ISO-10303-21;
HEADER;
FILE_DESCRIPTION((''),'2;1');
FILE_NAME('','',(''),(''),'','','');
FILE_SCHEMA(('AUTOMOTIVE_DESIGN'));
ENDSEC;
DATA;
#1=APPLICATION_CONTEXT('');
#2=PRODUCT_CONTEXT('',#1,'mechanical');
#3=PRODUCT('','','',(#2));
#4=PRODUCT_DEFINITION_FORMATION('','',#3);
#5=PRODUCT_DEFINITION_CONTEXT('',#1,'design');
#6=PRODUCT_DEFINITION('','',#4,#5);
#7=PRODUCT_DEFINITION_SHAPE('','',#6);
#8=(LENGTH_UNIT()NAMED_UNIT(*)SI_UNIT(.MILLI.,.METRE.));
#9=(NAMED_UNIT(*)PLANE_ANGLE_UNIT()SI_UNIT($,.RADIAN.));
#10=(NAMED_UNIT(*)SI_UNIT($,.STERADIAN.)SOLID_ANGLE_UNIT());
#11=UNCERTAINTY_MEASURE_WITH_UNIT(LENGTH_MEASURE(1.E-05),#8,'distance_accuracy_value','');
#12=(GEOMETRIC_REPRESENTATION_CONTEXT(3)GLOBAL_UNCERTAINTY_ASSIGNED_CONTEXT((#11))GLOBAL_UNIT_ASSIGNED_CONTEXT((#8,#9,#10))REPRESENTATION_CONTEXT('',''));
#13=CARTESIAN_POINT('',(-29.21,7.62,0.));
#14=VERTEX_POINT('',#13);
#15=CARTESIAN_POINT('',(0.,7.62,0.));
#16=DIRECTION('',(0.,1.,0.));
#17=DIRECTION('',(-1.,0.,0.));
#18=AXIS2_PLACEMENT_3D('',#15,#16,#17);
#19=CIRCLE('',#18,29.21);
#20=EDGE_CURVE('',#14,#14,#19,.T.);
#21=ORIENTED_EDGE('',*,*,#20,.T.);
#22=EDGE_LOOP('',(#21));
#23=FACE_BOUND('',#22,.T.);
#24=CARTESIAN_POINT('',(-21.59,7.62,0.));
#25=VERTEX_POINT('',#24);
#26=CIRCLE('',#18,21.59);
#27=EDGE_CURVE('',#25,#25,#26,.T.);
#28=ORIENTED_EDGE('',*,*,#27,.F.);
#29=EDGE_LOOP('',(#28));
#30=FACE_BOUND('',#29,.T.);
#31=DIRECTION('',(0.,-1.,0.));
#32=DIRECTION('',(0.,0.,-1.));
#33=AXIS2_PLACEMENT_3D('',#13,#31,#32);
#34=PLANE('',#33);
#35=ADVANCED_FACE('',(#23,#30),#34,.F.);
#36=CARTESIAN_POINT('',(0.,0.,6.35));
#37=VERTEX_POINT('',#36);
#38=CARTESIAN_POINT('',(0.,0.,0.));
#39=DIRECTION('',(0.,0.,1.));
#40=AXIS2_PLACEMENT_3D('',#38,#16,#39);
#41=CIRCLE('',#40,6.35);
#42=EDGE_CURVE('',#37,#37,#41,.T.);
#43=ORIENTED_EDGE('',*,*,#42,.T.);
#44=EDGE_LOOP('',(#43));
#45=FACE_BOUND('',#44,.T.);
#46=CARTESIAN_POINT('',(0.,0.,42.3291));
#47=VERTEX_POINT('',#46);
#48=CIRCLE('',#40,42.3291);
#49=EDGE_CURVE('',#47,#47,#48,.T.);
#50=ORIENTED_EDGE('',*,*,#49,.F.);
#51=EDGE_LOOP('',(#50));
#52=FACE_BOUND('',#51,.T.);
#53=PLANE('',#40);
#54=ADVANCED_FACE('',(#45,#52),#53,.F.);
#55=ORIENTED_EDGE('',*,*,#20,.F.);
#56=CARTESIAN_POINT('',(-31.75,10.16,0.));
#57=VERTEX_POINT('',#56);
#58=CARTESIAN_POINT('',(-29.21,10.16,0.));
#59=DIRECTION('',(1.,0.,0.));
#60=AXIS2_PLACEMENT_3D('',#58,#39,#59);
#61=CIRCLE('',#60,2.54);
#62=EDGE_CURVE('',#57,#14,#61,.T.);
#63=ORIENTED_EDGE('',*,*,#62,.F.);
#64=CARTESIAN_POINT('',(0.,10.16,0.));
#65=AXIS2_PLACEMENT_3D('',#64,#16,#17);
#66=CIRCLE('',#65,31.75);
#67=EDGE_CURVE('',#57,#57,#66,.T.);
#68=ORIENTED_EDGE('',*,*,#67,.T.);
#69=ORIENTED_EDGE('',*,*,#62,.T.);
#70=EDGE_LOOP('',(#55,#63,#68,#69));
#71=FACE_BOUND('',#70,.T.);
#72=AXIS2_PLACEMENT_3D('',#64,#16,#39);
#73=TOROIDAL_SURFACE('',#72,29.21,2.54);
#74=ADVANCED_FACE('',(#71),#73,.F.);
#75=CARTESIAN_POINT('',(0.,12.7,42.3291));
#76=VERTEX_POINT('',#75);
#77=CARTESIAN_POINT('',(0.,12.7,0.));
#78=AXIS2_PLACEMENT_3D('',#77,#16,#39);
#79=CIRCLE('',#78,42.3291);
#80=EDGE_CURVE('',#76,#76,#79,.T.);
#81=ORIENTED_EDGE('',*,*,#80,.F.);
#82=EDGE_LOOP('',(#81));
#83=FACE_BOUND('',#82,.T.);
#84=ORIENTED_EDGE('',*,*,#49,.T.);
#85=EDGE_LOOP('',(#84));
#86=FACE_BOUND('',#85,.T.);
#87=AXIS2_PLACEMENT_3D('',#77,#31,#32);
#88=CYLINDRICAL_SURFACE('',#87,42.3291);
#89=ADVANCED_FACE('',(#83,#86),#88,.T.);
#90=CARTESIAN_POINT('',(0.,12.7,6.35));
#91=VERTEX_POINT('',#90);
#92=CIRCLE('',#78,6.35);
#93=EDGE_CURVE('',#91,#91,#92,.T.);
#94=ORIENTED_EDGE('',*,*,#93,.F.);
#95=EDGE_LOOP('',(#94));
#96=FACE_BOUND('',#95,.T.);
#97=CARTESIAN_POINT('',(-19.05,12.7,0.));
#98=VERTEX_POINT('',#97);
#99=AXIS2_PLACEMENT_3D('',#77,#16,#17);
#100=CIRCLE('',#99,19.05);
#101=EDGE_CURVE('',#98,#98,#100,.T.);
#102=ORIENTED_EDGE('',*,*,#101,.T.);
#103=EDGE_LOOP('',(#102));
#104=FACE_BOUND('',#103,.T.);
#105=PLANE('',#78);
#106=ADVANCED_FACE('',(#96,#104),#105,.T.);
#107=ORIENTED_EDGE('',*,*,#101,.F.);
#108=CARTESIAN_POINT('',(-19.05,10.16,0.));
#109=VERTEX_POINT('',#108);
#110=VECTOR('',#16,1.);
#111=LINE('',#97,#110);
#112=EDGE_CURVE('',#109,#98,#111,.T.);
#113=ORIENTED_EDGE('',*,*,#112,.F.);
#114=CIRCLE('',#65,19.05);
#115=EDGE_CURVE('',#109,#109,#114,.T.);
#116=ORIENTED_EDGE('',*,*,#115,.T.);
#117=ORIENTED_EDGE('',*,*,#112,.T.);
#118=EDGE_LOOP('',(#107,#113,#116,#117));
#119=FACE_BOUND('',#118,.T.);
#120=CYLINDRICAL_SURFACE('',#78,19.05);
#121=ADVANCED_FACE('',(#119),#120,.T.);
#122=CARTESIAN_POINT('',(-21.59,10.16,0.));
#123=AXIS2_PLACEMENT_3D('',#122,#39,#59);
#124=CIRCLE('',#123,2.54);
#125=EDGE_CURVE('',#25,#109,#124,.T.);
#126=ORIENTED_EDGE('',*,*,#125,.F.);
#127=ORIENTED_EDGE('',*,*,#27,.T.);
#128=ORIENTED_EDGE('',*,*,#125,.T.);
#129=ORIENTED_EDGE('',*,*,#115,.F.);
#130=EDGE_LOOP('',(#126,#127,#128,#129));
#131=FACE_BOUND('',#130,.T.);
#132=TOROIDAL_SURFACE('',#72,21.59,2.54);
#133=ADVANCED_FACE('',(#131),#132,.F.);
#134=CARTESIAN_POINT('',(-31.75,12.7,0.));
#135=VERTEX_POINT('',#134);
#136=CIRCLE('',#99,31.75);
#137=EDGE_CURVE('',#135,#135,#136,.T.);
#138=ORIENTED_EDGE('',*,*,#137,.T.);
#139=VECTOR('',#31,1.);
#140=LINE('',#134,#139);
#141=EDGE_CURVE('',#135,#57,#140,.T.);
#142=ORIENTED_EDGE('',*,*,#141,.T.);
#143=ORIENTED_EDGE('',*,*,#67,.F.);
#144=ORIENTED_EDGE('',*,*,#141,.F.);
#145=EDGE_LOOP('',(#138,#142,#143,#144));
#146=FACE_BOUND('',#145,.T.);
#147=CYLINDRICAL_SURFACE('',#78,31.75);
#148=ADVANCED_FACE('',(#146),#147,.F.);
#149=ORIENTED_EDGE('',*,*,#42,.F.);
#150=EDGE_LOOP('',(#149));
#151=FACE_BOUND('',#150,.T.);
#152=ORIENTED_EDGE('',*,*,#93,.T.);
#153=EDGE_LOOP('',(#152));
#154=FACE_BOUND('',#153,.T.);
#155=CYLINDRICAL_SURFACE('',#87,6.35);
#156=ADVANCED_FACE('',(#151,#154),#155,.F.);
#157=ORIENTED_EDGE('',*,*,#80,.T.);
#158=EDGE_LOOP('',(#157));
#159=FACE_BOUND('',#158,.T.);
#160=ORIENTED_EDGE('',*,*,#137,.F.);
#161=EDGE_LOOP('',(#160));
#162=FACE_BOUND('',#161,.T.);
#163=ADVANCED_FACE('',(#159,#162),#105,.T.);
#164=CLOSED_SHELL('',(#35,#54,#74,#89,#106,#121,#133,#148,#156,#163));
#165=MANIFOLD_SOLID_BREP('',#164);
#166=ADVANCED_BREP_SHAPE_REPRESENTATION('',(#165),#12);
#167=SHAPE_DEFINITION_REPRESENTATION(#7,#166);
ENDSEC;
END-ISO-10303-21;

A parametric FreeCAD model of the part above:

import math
import FreeCAD as App
import Part
import Sketcher
Q = App.Units.Quantity

doc = App.newDocument("Part")
body = doc.addObject("PartDesign::Body", "Body")

sketch1 = body.newObject("Sketcher::SketchObject", "Sketch")
sketch1.AttachmentSupport = (doc.getObject("XZ_Plane"), [""])
sketch1.MapMode = "FlatFace"
sketch1.addGeometry([
    Part.Circle(App.Vector(0, 0, 0), App.Vector(0, 0, 1), 42),
    Part.Circle(App.Vector(0, 0, 0), App.Vector(0, 0, 1), 6),
], False)
sketch1.addConstraint([
    Sketcher.Constraint("Coincident", 0, 3, -1, 1),
    Sketcher.Constraint("Coincident", 1, 3, -1, 1),
    Sketcher.Constraint("Diameter", 1, Q("0.5 in")),
    Sketcher.Constraint("Diameter", 0, Q("3.333 in")),
])
pad1 = body.newObject("PartDesign::Pad", "Pad")
pad1.Profile = sketch1
pad1.Length = Q("0.5 in")
pad1.Reversed = True

sketch2 = body.newObject("Sketcher::SketchObject", "Sketch001")
sketch2.AttachmentSupport = (doc.getObject("XY_Plane"), [""])
sketch2.MapMode = "FlatFace"
sketch2.addGeometry([
    Part.LineSegment(App.Vector(-19.1, 12.7, 0), App.Vector(-31.8, 12.7, 0)),
    Part.LineSegment(App.Vector(-31.8, 12.7, 0), App.Vector(-31.8, 10.2, 0)),
    Part.ArcOfCircle(Part.Circle(App.Vector(-29.2, 10.2, 0), App.Vector(0, 0, 1), 2.5), math.radians(-180), math.radians(-90)),
    Part.LineSegment(App.Vector(-29.2, 7.6, 0), App.Vector(-21.6, 7.6, 0)),
    Part.ArcOfCircle(Part.Circle(App.Vector(-21.6, 10.2, 0), App.Vector(0, 0, 1), 2.5), math.radians(-90), math.radians(0)),
    Part.LineSegment(App.Vector(-19.1, 10.2, 0), App.Vector(-19.1, 12.7, 0)),
], False)
sketch2.addConstraint([
    Sketcher.Constraint("Coincident", 0, 2, 1, 1),
    Sketcher.Constraint("Tangent", 1, 2, 2, 1),
    Sketcher.Constraint("Tangent", 2, 2, 3, 1),
    Sketcher.Constraint("Tangent", 3, 2, 4, 1),
    Sketcher.Constraint("Tangent", 4, 2, 5, 1),
    Sketcher.Constraint("Coincident", 5, 2, 0, 1),
    Sketcher.Constraint("Horizontal", 0),
    Sketcher.Constraint("Vertical", 1),
    Sketcher.Constraint("Horizontal", 3),
    Sketcher.Constraint("Vertical", 5),
    Sketcher.Constraint("Equal", 2, 4),
    Sketcher.Constraint("Radius", 2, Q("0.1 in")),
    Sketcher.Constraint("DistanceX", 0, 2, 0, 1, Q("0.5 in")),
    Sketcher.Constraint("DistanceY", 1, 2, 1, 1, Q("0.1 in")),
    Sketcher.Constraint("DistanceY", -1, 1, 2, 3, Q("0.4 in")),
    Sketcher.Constraint("DistanceX", 2, 3, -1, 1, Q("1.15 in")),
])

sketch3 = body.newObject("Sketcher::SketchObject", "Sketch002")
sketch3.AttachmentSupport = (doc.getObject("XZ_Plane"), [""])
sketch3.MapMode = "FlatFace"
sketch3.AttachmentOffset = App.Placement(App.Vector(0, 0, -0.5 * 25.4), App.Rotation())
sketch3.addGeometry(Part.Circle(App.Vector(0, 0, 0), App.Vector(0, 0, 1), 25), False)
sketch3.addConstraint([
    Sketcher.Constraint("Coincident", 0, 3, -1, 1),
    Sketcher.Constraint("Diameter", 0, Q("2 in")),
])
doc.recompute()

subtractivepipe = body.newObject("PartDesign::SubtractivePipe", "SubtractivePipe")
subtractivepipe.Profile = sketch2
subtractivepipe.Spine = (sketch3, ["Edge1"])

doc.recompute()
